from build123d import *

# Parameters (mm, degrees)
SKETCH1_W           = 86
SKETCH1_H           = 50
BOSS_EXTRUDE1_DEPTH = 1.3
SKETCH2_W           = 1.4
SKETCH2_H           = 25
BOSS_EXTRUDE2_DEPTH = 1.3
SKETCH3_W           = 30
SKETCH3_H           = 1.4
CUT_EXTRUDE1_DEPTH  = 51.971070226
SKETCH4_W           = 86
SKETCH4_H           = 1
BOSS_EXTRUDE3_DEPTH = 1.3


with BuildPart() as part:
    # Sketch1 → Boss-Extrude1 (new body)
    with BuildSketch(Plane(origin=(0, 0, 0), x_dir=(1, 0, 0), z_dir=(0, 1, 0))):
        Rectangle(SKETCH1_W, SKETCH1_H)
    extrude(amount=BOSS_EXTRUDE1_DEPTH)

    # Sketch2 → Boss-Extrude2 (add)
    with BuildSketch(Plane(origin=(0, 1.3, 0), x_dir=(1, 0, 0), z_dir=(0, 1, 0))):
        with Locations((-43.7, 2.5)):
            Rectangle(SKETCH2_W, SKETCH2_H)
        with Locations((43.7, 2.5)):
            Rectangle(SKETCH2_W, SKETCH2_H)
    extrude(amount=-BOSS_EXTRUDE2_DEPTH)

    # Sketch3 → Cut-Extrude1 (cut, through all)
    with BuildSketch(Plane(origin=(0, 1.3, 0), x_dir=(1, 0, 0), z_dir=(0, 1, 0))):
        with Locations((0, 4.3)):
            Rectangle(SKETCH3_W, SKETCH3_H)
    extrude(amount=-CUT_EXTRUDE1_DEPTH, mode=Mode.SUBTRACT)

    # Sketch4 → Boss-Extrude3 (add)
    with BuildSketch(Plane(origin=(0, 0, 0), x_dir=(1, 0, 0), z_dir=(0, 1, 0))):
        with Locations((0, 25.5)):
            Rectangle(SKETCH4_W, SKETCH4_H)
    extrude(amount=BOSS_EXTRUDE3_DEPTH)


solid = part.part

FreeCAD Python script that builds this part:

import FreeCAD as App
import Part
import Sketcher
from FreeCAD import Vector

doc = App.newDocument("Part")
body = doc.addObject("PartDesign::Body", "Body")

sketch1 = body.newObject("Sketcher::SketchObject", "Sketch")
sketch1.AttachmentSupport = (doc.getObject("XZ_Plane"), [""])
sketch1.MapMode = "FlatFace"
sketch1.addGeometry([
    Part.LineSegment(Vector(-43, -25, 0), Vector(-43, 25, 0)),
    Part.LineSegment(Vector(-43, 25, 0), Vector(43, 25, 0)),
    Part.LineSegment(Vector(43, 25, 0), Vector(43, -25, 0)),
    Part.LineSegment(Vector(43, -25, 0), Vector(-43, -25, 0)),
], False)
sketch1.addConstraint([
    Sketcher.Constraint("Coincident", 0, 2, 1, 1),
    Sketcher.Constraint("Coincident", 1, 2, 2, 1),
    Sketcher.Constraint("Coincident", 2, 2, 3, 1),
    Sketcher.Constraint("Coincident", 3, 2, 0, 1),
    Sketcher.Constraint("Vertical", 0),
    Sketcher.Constraint("Horizontal", 1),
    Sketcher.Constraint("Vertical", 2),
    Sketcher.Constraint("Horizontal", 3),
    Sketcher.Constraint("Symmetric", 0, 2, 2, 2, -1, 1),
    Sketcher.Constraint("DistanceX", 1, 1, 1, 2, 86.0),
    Sketcher.Constraint("DistanceY", 0, 1, 0, 2, 50.0),
])
pad1 = body.newObject("PartDesign::Pad", "Pad")
pad1.Profile = sketch1
pad1.Length = 1.3
pad1.Reversed = True

sketch2 = body.newObject("Sketcher::SketchObject", "Sketch001")
sketch2.AttachmentSupport = (doc.getObject("XZ_Plane"), [""])
sketch2.MapMode = "FlatFace"
sketch2.AttachmentOffset = App.Placement(Vector(0, 0, -1.3), App.Rotation())
sketch2.addGeometry([
    Part.LineSegment(Vector(-44.4, -15, 0), Vector(-44.4, 10, 0)),
    Part.LineSegment(Vector(-44.4, 10, 0), Vector(-43, 10, 0)),
    Part.LineSegment(Vector(-43, 10, 0), Vector(-43, -15, 0)),
    Part.LineSegment(Vector(-43, -15, 0), Vector(-44.4, -15, 0)),
    Part.LineSegment(Vector(43, -15, 0), Vector(43, 10, 0)),
    Part.LineSegment(Vector(43, 10, 0), Vector(44.4, 10, 0)),
    Part.LineSegment(Vector(44.4, 10, 0), Vector(44.4, -15, 0)),
    Part.LineSegment(Vector(44.4, -15, 0), Vector(43, -15, 0)),
], False)
sketch2.addConstraint([
    Sketcher.Constraint("Coincident", 0, 2, 1, 1),
    Sketcher.Constraint("Coincident", 1, 2, 2, 1),
    Sketcher.Constraint("Coincident", 2, 2, 3, 1),
    Sketcher.Constraint("Coincident", 3, 2, 0, 1),
    Sketcher.Constraint("Coincident", 4, 2, 5, 1),
    Sketcher.Constraint("Coincident", 5, 2, 6, 1),
    Sketcher.Constraint("Coincident", 6, 2, 7, 1),
    Sketcher.Constraint("Coincident", 7, 2, 4, 1),
    Sketcher.Constraint("Vertical", 0),
    Sketcher.Constraint("Horizontal", 1),
    Sketcher.Constraint("Vertical", 2),
    Sketcher.Constraint("Horizontal", 3),
    Sketcher.Constraint("Vertical", 4),
    Sketcher.Constraint("Horizontal", 5),
    Sketcher.Constraint("Vertical", 6),
    Sketcher.Constraint("Horizontal", 7),
    Sketcher.Constraint("Symmetric", 1, 2, 4, 2, -2),
    Sketcher.Constraint("Symmetric", 3, 2, 6, 2, -2),
    Sketcher.Constraint("DistanceY", 0, 1, 0, 2, 25.0),
    Sketcher.Constraint("DistanceX", 1, 1, 1, 2, 1.4),
    Sketcher.Constraint("DistanceY", -1, 1, 0, 2, 10.0),
    Sketcher.Constraint("DistanceX", 1, 2, -1, 1, 43.0),
])
pad2 = body.newObject("PartDesign::Pad", "Pad001")
pad2.Profile = sketch2
pad2.Length = 1.3

sketch3 = body.newObject("Sketcher::SketchObject", "Sketch002")
sketch3.AttachmentSupport = (doc.getObject("XZ_Plane"), [""])
sketch3.MapMode = "FlatFace"
sketch3.AttachmentOffset = App.Placement(Vector(0, 0, -1.3), App.Rotation())
sketch3.addGeometry([
    Part.LineSegment(Vector(-15, -5, 0), Vector(-15, -3.6, 0)),
    Part.LineSegment(Vector(-15, -3.6, 0), Vector(15, -3.6, 0)),
    Part.LineSegment(Vector(15, -3.6, 0), Vector(15, -5, 0)),
    Part.LineSegment(Vector(15, -5, 0), Vector(-15, -5, 0)),
], False)
sketch3.addConstraint([
    Sketcher.Constraint("Coincident", 0, 2, 1, 1),
    Sketcher.Constraint("Coincident", 1, 2, 2, 1),
    Sketcher.Constraint("Coincident", 2, 2, 3, 1),
    Sketcher.Constraint("Coincident", 3, 2, 0, 1),
    Sketcher.Constraint("Vertical", 0),
    Sketcher.Constraint("Horizontal", 1),
    Sketcher.Constraint("Vertical", 2),
    Sketcher.Constraint("Horizontal", 3),
    Sketcher.Constraint("DistanceX", 1, 1, 1, 2, 30.0),
    Sketcher.Constraint("DistanceY", 0, 1, 0, 2, 1.4),
    Sketcher.Constraint("DistanceX", 0, 2, -1, 1, 15.0),
    Sketcher.Constraint("DistanceY", 2, 2, -1, 1, 5.0),
])
pocket1 = body.newObject("PartDesign::Pocket", "Pocket")
pocket1.Profile = sketch3
pocket1.Type = "ThroughAll"
pocket1.Reversed = True

sketch4 = body.newObject("Sketcher::SketchObject", "Sketch003")
sketch4.AttachmentSupport = (doc.getObject("XZ_Plane"), [""])
sketch4.MapMode = "FlatFace"
sketch4.addGeometry([
    Part.LineSegment(Vector(-43, -26, 0), Vector(-43, -25, 0)),
    Part.LineSegment(Vector(-43, -25, 0), Vector(43, -25, 0)),
    Part.LineSegment(Vector(43, -25, 0), Vector(43, -26, 0)),
    Part.LineSegment(Vector(43, -26, 0), Vector(-43, -26, 0)),
], False)
sketch4.addConstraint([
    Sketcher.Constraint("Coincident", 0, 2, 1, 1),
    Sketcher.Constraint("Coincident", 1, 2, 2, 1),
    Sketcher.Constraint("Coincident", 2, 2, 3, 1),
    Sketcher.Constraint("Coincident", 3, 2, 0, 1),
    Sketcher.Constraint("Vertical", 0),
    Sketcher.Constraint("Horizontal", 1),
    Sketcher.Constraint("Vertical", 2),
    Sketcher.Constraint("Horizontal", 3),
    Sketcher.Constraint("DistanceX", 1, 1, 1, 2, 86.0),
    Sketcher.Constraint("DistanceY", 0, 1, 0, 2, 1.0),
    Sketcher.Constraint("DistanceX", 0, 2, -1, 1, 43.0),
    Sketcher.Constraint("DistanceY", 0, 2, -1, 1, 25.0),
])
pad3 = body.newObject("PartDesign::Pad", "Pad002")
pad3.Profile = sketch4
pad3.Length = 1.3
pad3.Reversed = True

doc.recompute()
